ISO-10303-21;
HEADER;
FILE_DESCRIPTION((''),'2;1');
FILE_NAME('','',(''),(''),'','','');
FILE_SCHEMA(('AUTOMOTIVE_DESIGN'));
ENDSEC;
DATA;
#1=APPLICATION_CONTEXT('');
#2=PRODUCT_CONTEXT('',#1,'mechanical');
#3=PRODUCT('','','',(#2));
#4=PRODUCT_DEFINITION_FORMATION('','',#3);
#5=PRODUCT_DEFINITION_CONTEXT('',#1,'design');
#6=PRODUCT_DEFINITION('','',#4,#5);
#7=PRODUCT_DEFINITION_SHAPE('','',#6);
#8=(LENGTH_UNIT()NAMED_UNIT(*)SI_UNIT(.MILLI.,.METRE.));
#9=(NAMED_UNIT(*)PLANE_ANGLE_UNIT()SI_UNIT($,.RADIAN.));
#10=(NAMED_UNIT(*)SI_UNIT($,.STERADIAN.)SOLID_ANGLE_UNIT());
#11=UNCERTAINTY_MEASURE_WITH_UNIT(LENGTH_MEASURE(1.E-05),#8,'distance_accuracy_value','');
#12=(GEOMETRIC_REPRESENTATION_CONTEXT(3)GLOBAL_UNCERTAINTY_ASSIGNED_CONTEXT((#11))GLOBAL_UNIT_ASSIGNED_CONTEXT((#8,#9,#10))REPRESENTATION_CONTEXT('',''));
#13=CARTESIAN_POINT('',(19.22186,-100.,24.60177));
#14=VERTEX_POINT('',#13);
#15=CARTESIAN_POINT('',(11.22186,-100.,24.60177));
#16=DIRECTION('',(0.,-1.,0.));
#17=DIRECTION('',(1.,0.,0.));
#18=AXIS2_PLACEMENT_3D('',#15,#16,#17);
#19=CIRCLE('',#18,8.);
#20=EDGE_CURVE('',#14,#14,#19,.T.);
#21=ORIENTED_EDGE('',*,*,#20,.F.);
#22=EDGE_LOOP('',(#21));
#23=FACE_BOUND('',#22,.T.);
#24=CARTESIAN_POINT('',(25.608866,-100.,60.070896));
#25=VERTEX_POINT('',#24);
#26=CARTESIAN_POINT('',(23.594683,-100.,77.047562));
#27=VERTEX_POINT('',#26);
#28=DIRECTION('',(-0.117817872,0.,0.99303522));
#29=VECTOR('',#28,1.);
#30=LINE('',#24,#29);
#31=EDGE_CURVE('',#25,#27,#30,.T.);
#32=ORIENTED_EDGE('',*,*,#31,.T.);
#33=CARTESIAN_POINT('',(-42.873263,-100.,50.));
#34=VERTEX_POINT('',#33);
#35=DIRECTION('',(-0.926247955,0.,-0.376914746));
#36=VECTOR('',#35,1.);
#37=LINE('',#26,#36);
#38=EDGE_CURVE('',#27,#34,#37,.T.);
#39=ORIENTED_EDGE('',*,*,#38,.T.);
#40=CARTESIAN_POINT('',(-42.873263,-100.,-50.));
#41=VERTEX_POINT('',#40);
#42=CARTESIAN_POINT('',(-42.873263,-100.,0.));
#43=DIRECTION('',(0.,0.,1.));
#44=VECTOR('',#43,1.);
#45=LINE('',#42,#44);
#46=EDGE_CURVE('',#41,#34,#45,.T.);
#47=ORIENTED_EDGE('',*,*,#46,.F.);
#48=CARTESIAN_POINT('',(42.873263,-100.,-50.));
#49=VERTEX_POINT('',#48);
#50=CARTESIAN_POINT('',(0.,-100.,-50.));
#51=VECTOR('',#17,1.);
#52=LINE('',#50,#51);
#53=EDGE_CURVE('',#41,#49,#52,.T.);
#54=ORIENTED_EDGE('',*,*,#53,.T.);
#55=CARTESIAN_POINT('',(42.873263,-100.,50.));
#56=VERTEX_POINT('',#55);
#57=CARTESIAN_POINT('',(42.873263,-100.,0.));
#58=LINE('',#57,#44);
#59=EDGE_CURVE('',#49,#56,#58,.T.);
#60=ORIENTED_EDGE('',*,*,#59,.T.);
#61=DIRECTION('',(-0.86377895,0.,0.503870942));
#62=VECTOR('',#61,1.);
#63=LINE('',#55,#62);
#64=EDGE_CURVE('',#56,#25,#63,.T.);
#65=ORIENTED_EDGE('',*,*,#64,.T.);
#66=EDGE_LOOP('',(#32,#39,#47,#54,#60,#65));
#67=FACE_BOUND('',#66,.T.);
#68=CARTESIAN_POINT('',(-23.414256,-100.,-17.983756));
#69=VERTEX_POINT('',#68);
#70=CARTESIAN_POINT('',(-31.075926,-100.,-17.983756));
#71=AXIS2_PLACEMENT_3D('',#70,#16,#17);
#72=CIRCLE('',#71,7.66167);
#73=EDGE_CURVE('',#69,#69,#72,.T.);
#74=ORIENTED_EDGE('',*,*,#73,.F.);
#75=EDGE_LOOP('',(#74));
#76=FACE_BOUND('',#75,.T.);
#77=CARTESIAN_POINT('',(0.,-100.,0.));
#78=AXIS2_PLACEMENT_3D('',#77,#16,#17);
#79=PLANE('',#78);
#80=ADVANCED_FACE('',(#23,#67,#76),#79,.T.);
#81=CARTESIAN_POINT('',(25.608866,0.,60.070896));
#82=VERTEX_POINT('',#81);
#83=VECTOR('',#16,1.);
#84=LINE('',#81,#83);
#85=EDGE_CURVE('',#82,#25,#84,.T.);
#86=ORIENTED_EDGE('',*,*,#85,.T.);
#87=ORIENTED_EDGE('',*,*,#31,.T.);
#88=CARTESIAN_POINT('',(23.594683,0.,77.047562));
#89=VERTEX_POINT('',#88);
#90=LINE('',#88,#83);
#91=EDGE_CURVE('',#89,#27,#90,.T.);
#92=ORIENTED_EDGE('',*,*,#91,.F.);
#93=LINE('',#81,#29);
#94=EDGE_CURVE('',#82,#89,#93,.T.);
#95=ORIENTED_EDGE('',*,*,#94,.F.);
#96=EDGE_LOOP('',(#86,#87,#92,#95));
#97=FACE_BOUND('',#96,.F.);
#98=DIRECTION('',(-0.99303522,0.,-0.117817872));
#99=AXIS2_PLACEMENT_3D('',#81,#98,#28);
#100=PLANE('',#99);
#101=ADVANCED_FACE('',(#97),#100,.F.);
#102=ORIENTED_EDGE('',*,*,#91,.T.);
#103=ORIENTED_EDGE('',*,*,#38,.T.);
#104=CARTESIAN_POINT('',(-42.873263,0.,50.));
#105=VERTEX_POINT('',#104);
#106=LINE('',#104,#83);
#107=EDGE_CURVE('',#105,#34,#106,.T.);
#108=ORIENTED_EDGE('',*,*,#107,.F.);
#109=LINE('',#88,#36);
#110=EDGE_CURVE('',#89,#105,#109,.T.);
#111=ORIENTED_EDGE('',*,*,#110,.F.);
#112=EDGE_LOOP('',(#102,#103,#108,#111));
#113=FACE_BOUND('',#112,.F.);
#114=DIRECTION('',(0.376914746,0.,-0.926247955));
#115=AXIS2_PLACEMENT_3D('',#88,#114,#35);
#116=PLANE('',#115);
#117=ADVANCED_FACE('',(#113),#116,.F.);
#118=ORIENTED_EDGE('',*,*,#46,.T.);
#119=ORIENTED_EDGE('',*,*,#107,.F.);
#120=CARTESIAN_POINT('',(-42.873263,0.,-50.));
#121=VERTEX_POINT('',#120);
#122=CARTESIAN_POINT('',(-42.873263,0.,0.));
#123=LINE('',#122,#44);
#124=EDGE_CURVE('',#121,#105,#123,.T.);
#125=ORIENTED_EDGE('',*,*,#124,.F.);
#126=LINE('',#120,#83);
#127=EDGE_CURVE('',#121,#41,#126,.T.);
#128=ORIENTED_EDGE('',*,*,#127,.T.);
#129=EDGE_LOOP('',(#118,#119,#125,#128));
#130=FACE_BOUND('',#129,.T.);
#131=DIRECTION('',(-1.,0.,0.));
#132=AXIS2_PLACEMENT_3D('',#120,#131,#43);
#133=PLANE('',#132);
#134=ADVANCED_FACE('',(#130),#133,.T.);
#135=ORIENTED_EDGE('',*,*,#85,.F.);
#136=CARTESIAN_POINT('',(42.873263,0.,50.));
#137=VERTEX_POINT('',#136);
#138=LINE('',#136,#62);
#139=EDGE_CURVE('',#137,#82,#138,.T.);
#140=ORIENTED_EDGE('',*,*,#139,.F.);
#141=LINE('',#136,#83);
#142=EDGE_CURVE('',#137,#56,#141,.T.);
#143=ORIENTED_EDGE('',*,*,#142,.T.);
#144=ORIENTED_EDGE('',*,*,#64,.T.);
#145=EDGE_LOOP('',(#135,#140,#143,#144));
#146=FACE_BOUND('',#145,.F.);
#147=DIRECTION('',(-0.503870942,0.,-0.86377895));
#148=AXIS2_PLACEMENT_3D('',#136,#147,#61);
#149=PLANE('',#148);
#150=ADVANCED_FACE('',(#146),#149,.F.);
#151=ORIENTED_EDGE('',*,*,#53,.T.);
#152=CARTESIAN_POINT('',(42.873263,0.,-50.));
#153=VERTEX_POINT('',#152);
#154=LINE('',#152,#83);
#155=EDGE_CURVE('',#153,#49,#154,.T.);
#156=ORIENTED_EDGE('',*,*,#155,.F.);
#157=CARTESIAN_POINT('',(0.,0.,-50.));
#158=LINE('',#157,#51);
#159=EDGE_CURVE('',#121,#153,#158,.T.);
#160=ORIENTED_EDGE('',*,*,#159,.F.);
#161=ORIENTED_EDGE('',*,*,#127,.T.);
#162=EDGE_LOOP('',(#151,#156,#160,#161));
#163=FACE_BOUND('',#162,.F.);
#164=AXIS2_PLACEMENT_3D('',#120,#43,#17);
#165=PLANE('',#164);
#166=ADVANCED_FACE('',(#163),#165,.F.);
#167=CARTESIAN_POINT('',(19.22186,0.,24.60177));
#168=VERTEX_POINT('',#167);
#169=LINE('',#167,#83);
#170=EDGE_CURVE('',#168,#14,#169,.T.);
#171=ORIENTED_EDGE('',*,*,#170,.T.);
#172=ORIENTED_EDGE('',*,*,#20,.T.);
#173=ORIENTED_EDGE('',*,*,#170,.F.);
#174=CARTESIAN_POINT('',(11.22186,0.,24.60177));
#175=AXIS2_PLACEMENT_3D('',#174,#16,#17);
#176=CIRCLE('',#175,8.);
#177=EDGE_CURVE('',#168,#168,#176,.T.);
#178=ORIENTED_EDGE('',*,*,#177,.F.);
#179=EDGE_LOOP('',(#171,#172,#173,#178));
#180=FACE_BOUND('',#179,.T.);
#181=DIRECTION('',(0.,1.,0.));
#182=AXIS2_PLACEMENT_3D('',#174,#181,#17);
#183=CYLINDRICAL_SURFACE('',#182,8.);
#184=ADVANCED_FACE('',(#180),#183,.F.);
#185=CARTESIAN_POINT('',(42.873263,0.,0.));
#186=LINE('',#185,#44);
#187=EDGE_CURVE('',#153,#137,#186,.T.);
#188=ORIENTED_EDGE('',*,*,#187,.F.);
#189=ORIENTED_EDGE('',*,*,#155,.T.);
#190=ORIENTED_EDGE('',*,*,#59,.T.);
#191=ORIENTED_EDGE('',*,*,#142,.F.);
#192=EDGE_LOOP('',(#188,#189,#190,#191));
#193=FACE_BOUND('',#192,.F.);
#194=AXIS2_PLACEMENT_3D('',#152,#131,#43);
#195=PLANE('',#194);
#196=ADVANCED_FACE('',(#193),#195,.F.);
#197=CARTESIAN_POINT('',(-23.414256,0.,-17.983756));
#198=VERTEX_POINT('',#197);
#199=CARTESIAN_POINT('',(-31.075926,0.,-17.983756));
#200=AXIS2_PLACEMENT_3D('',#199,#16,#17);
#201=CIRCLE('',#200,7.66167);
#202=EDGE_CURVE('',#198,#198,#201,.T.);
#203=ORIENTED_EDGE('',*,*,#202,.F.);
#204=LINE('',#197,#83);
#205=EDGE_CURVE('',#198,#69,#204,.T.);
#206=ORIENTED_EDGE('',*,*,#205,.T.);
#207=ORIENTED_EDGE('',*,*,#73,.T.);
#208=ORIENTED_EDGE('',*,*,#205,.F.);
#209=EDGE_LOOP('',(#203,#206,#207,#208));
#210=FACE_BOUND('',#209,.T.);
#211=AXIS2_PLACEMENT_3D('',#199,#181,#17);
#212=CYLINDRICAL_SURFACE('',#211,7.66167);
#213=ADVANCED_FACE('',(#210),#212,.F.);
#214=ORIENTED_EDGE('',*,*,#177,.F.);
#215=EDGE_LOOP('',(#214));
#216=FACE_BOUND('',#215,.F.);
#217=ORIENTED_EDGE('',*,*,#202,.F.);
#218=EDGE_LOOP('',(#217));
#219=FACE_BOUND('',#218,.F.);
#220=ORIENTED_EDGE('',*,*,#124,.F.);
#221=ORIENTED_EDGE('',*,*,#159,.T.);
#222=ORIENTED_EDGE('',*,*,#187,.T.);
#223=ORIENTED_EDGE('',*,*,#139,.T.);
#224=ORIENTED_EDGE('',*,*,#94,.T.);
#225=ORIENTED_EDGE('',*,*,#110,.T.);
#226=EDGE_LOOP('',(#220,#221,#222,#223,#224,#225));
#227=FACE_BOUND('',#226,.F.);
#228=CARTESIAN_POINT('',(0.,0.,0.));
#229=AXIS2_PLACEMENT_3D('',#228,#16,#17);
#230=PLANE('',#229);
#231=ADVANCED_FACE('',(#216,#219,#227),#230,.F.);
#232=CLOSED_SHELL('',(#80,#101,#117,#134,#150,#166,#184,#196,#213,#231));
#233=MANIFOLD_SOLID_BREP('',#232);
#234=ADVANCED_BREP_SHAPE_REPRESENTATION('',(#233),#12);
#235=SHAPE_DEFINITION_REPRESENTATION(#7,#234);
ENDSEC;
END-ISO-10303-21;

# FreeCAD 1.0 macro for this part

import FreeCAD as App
import Part
import Sketcher


def add_polygon(sketch, points):
    """Adds a closed chain of lines whose ends are joined by coincident constraints."""
    first, n = sketch.GeometryCount, len(points)
    for a, b in zip(points, points[1:] + points[:1]):
        sketch.addGeometry(Part.LineSegment(App.Vector(*a, 0), App.Vector(*b, 0)), False)
    for i in range(n):
        sketch.addConstraint(Sketcher.Constraint("Coincident", first + i, 2, first + (i + 1) % n, 1))

doc = App.newDocument("Part")
params = doc.addObject("Spreadsheet::Sheet", "Params")
for row, (alias, value) in enumerate([
    ("sketch1_diameter", "16 mm"),
    ("sketch1_height", "100 mm"),
    ("pad1_length", "100 mm"),
], start=1):
    params.set(f"A{row}", alias)
    params.set(f"B{row}", "=" + value)
    params.setAlias(f"B{row}", alias)

body = doc.addObject("PartDesign::Body", "Body")

# Sketch on XZ plane
sketch1 = doc.addObject("Sketcher::SketchObject", "Sketch")
body.addObject(sketch1)
sketch1.AttachmentSupport = (doc.XZ_Plane, [""])
sketch1.MapMode = "FlatFace"
add_polygon(sketch1, [(-43, 50), (-43, -50), (43, -50), (43, 50), (26, 60), (24, 77)])  # lines 0-5
sketch1.addGeometry(Part.Circle(App.Vector(-31, -18, 0), App.Vector(0, 0, 1), 8), False)  # 6
sketch1.addGeometry(Part.Circle(App.Vector(11, 25, 0), App.Vector(0, 0, 1), 8), False)  # 7
sketch1.addConstraint(Sketcher.Constraint("Vertical", 0))
sketch1.addConstraint(Sketcher.Constraint("Horizontal", 1))
sketch1.addConstraint(Sketcher.Constraint("Vertical", 2))
sketch1.addConstraint(Sketcher.Constraint("Symmetric", 0, 2, 2, 2, -1, 1))
sketch1.addConstraint(Sketcher.Constraint("Horizontal", 2, 2, 5, 2))
sketch1.addConstraint(Sketcher.Constraint("Diameter", 7, 16.0))
sketch1.addConstraint(Sketcher.Constraint("DistanceY", 0, 2, 0, 1, 100.0))
sketch1.addConstraint(Sketcher.Constraint("Diameter", 6, 15.32334))
sketch1.addConstraint(Sketcher.Constraint("DistanceX", 1, 1, 1, 2, 85.746526))
sketch1.addConstraint(Sketcher.Constraint("DistanceX", -1, 1, 7, 3, 11.22186))
sketch1.addConstraint(Sketcher.Constraint("DistanceY", -1, 1, 7, 3, 24.60177))
sketch1.addConstraint(Sketcher.Constraint("DistanceY", -1, 1, 4, 2, 77.047562))
sketch1.addConstraint(Sketcher.Constraint("DistanceX", 6, 3, 1, 2, 73.949189))
sketch1.addConstraint(Sketcher.Constraint("DistanceX", 0, 2, 3, 2, 68.482129))
sketch1.addConstraint(Sketcher.Constraint("DistanceX", 4, 2, 2, 2, 19.27858))
sketch1.addConstraint(Sketcher.Constraint("DistanceY", 6, 3, 4, 2, 95.031318))
sketch1.addConstraint(Sketcher.Constraint("Distance", 3, 19.987055))
sketch1.setExpression("Constraints[11]", "Params.sketch1_diameter")
sketch1.setExpression("Constraints[12]", "Params.sketch1_height")
pad1 = doc.addObject("PartDesign::Pad", "Pad")
body.addObject(pad1)
pad1.Profile = sketch1
pad1.setExpression("Length", "Params.pad1_length")

doc.recompute()
